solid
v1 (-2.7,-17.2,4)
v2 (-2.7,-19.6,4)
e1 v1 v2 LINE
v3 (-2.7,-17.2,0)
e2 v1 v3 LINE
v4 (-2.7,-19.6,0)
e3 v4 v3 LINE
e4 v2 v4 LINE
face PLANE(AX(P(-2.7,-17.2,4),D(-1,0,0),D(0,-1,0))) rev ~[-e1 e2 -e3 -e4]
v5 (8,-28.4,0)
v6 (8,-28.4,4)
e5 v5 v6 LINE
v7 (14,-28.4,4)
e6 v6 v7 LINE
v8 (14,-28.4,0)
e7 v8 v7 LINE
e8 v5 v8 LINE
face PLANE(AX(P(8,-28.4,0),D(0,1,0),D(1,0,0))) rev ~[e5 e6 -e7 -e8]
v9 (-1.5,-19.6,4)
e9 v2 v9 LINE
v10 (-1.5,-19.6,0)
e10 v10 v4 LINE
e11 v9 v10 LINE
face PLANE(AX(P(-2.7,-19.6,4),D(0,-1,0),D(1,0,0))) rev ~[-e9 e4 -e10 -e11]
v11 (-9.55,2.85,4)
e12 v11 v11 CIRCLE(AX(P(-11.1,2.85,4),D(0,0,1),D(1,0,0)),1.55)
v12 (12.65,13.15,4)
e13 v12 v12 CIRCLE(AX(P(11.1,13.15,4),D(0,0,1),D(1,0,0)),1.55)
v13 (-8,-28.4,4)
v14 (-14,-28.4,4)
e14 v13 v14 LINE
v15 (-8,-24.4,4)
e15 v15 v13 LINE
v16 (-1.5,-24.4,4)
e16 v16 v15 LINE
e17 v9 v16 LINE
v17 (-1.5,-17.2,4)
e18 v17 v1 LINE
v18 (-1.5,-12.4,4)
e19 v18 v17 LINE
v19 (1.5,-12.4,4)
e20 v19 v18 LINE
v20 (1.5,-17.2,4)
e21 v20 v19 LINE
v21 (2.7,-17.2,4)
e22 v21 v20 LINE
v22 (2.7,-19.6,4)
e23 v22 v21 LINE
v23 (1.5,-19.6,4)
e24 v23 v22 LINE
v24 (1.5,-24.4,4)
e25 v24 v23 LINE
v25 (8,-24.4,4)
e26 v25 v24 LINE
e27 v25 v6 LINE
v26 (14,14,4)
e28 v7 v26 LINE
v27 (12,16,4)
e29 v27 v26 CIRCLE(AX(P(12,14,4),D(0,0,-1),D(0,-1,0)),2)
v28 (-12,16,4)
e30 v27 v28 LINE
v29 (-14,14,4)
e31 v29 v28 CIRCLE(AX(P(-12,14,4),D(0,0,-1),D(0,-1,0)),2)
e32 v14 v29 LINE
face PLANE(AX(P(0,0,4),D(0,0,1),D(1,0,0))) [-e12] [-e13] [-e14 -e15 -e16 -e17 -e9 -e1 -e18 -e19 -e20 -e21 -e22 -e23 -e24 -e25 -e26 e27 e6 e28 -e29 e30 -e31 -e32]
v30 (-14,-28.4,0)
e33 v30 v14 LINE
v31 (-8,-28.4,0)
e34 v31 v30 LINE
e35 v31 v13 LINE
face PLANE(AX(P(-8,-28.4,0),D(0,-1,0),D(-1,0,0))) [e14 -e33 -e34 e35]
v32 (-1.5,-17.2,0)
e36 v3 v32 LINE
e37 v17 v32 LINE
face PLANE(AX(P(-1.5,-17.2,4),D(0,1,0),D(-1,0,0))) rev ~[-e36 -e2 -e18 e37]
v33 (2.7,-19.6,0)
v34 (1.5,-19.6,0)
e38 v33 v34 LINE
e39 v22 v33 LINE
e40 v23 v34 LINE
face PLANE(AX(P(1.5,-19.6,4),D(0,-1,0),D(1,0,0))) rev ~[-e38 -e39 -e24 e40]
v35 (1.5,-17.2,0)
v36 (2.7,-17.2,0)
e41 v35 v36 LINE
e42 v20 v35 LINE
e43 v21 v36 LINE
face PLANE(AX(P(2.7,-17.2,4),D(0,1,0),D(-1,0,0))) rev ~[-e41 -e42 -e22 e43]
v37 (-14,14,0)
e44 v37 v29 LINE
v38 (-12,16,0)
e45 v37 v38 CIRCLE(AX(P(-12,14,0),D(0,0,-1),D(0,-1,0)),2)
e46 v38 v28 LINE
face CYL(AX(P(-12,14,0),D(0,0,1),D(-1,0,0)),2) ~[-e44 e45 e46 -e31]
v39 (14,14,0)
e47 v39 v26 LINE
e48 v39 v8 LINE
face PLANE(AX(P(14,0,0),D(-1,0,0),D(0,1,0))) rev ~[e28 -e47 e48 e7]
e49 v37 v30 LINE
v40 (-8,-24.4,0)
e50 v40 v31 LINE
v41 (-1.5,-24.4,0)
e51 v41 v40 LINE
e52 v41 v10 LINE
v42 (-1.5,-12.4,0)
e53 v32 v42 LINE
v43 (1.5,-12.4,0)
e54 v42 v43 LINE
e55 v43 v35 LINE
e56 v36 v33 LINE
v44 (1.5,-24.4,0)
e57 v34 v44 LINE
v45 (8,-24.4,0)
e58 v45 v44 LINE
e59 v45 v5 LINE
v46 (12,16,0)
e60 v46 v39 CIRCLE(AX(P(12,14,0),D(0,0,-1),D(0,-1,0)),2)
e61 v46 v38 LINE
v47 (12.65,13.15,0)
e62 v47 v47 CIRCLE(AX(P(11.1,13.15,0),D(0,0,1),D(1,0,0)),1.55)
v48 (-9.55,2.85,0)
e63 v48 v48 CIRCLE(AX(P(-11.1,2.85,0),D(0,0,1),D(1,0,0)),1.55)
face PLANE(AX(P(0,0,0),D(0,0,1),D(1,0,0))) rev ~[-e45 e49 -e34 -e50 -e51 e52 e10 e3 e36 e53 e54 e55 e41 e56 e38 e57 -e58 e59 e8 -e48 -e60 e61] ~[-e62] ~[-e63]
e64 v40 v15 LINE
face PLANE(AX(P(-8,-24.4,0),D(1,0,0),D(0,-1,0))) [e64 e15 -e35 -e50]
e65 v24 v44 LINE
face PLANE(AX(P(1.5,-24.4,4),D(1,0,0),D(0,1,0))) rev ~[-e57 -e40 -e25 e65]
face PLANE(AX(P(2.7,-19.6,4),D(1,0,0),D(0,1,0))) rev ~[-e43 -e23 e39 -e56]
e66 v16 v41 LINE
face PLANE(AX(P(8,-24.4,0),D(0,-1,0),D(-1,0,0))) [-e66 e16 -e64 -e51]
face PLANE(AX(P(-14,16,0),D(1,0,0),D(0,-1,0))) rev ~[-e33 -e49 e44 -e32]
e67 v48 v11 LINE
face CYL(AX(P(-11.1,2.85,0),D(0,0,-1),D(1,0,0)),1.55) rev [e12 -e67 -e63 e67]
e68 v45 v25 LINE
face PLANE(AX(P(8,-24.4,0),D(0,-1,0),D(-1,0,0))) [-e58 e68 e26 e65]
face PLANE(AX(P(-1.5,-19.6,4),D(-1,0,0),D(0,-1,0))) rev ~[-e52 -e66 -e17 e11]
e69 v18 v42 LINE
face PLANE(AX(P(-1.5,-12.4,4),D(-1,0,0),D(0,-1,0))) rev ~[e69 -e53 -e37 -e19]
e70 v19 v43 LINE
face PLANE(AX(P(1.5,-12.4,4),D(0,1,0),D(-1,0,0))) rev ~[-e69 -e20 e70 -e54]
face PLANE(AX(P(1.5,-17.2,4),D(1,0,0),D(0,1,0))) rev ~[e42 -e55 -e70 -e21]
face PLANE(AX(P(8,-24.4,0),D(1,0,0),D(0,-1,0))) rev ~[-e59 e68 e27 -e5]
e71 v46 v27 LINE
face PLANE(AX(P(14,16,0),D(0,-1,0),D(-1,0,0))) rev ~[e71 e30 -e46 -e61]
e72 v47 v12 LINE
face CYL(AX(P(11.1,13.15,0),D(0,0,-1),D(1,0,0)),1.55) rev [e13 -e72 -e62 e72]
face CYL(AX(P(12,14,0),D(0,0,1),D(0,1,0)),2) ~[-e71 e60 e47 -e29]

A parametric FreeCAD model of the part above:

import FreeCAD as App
import Part
import Sketcher
Q = App.Units.Quantity


def edges_at(feature, points):
    """Names of the edges that pass closest to the given points."""
    edges = feature.Shape.Edges
    near = lambda p: min(range(len(edges)), key=lambda i: edges[i].distToShape(Part.Vertex(*p))[0])
    return sorted({f"Edge{near(p) + 1}" for p in points})


def add_polygon(sketch, points):
    """Adds a closed chain of lines whose ends are joined by coincident constraints."""
    first, n = sketch.GeometryCount, len(points)
    for a, b in zip(points, points[1:] + points[:1]):
        sketch.addGeometry(Part.LineSegment(App.Vector(*a, 0), App.Vector(*b, 0)), False)
    for i in range(n):
        sketch.addConstraint(Sketcher.Constraint("Coincident", first + i, 2, first + (i + 1) % n, 1))

doc = App.newDocument("Part")
body = doc.addObject("PartDesign::Body", "Body")

# Sketch on XY plane
sketch1 = body.newObject("Sketcher::SketchObject", "Sketch")
sketch1.AttachmentSupport = (doc.getObject("XY_Plane"), [""])
sketch1.MapMode = "FlatFace"
add_polygon(sketch1, [(-14, 16), (-14, -28.4), (-8, -28.4), (-8, -24.4), (8, -24.4), (8, -28.4), (14, -28.4), (14, 16)])  # lines 0-7
sketch1.addGeometry(Part.Circle(App.Vector(-11.1, 2.85, 0), App.Vector(0, 0, 1), 1.55), False)  # 8
sketch1.addGeometry(Part.Circle(App.Vector(11.1, 13.15, 0), App.Vector(0, 0, 1), 1.55), False)  # 9
sketch1.addConstraint(Sketcher.Constraint("Vertical", 0))
sketch1.addConstraint(Sketcher.Constraint("Horizontal", 1))
sketch1.addConstraint(Sketcher.Constraint("Vertical", 2))
sketch1.addConstraint(Sketcher.Constraint("Horizontal", 3))
sketch1.addConstraint(Sketcher.Constraint("Vertical", 4))
sketch1.addConstraint(Sketcher.Constraint("Horizontal", 5))
sketch1.addConstraint(Sketcher.Constraint("Vertical", 6))
sketch1.addConstraint(Sketcher.Constraint("Horizontal", 7))
sketch1.addConstraint(Sketcher.Constraint("Equal", 8, 9))
sketch1.addConstraint(Sketcher.Constraint("Symmetric", 1, 2, 4, 2, -2))
sketch1.addConstraint(Sketcher.Constraint("Equal", 1, 5))
sketch1.addConstraint(Sketcher.Constraint("Diameter", 8, Q("3.1 mm")))
sketch1.addConstraint(Sketcher.Constraint("DistanceX", 1, 1, 1, 2, Q("6 mm")))
sketch1.addConstraint(Sketcher.Constraint("DistanceX", 3, 1, 3, 2, Q("16 mm")))
sketch1.addConstraint(Sketcher.Constraint("DistanceY", 2, 1, 2, 2, Q("4 mm")))
sketch1.addConstraint(Sketcher.Constraint("DistanceY", -1, 1, 6, 2, Q("16 mm")))
sketch1.addConstraint(Sketcher.Constraint("DistanceX", 8, 3, 9, 3, Q("22.2 mm")))
sketch1.addConstraint(Sketcher.Constraint("DistanceY", 8, 3, 9, 3, Q("10.3 mm")))
sketch1.addConstraint(Sketcher.Constraint("DistanceX", 8, 3, 1, 2, Q("3.1 mm")))
sketch1.addConstraint(Sketcher.Constraint("DistanceY", 3, 2, 6, 2, Q("40.4 mm")))
sketch1.addConstraint(Sketcher.Constraint("DistanceY", -1, 1, 8, 3, Q("2.85 mm")))
pad1 = body.newObject("PartDesign::Pad", "Pad")
pad1.Profile = sketch1
pad1.Length = 4

# Sketch on XY plane
sketch2 = body.newObject("Sketcher::SketchObject", "Sketch001")
sketch2.AttachmentSupport = (doc.getObject("XY_Plane"), [""])
sketch2.MapMode = "FlatFace"
sketch2.AttachmentOffset = App.Placement(App.Vector(0, 0, 4), App.Rotation())
add_polygon(sketch2, [(-1.5, -19.6), (-1.5, -24.4), (1.5, -24.4), (1.5, -19.6), (2.7, -19.6), (2.7, -17.2), (1.5, -17.2), (1.5, -12.4), (-1.5, -12.4), (-1.5, -17.2), (-2.7, -17.2), (-2.7, -19.6)])  # lines 0-11
sketch2.addConstraint(Sketcher.Constraint("Vertical", 0))
sketch2.addConstraint(Sketcher.Constraint("Horizontal", 1))
sketch2.addConstraint(Sketcher.Constraint("Vertical", 2))
sketch2.addConstraint(Sketcher.Constraint("Horizontal", 3))
sketch2.addConstraint(Sketcher.Constraint("Vertical", 4))
sketch2.addConstraint(Sketcher.Constraint("Horizontal", 5))
sketch2.addConstraint(Sketcher.Constraint("Vertical", 6))
sketch2.addConstraint(Sketcher.Constraint("Horizontal", 7))
sketch2.addConstraint(Sketcher.Constraint("Vertical", 8))
sketch2.addConstraint(Sketcher.Constraint("Horizontal", 9))
sketch2.addConstraint(Sketcher.Constraint("Vertical", 10))
sketch2.addConstraint(Sketcher.Constraint("Horizontal", 11))
sketch2.addConstraint(Sketcher.Constraint("Symmetric", 5, 2, 8, 2, -2))
sketch2.addConstraint(Sketcher.Constraint("Symmetric", 3, 2, 10, 2, -2))
sketch2.addConstraint(Sketcher.Constraint("Vertical", 2, 2, 5, 2))
sketch2.addConstraint(Sketcher.Constraint("Vertical", 0, 2, 7, 2))
sketch2.addConstraint(Sketcher.Constraint("Equal", 2, 6))
sketch2.addConstraint(Sketcher.Constraint("DistanceX", 1, 1, 1, 2, Q("3 mm")))
sketch2.addConstraint(Sketcher.Constraint("DistanceY", 4, 1, 4, 2, Q("2.4 mm")))
sketch2.addConstraint(Sketcher.Constraint("DistanceY", 1, 2, 6, 2, Q("12 mm")))
sketch2.addConstraint(Sketcher.Constraint("DistanceX", 9, 2, 4, 2, Q("5.4 mm")))
sketch2.addConstraint(Sketcher.Constraint("DistanceY", 0, 2, -1, 1, Q("24.4 mm")))
pocket1 = body.newObject("PartDesign::Pocket", "Pocket")
pocket1.Profile = sketch2
pocket1.Type = "UpToFirst"
doc.recompute()

fillet = body.newObject("PartDesign::Fillet", "Fillet")
fillet.Base = (pocket1, edges_at(pocket1, [(14, 16, 2), (-14, 16, 2)]))
fillet.Radius = 2

doc.recompute()
